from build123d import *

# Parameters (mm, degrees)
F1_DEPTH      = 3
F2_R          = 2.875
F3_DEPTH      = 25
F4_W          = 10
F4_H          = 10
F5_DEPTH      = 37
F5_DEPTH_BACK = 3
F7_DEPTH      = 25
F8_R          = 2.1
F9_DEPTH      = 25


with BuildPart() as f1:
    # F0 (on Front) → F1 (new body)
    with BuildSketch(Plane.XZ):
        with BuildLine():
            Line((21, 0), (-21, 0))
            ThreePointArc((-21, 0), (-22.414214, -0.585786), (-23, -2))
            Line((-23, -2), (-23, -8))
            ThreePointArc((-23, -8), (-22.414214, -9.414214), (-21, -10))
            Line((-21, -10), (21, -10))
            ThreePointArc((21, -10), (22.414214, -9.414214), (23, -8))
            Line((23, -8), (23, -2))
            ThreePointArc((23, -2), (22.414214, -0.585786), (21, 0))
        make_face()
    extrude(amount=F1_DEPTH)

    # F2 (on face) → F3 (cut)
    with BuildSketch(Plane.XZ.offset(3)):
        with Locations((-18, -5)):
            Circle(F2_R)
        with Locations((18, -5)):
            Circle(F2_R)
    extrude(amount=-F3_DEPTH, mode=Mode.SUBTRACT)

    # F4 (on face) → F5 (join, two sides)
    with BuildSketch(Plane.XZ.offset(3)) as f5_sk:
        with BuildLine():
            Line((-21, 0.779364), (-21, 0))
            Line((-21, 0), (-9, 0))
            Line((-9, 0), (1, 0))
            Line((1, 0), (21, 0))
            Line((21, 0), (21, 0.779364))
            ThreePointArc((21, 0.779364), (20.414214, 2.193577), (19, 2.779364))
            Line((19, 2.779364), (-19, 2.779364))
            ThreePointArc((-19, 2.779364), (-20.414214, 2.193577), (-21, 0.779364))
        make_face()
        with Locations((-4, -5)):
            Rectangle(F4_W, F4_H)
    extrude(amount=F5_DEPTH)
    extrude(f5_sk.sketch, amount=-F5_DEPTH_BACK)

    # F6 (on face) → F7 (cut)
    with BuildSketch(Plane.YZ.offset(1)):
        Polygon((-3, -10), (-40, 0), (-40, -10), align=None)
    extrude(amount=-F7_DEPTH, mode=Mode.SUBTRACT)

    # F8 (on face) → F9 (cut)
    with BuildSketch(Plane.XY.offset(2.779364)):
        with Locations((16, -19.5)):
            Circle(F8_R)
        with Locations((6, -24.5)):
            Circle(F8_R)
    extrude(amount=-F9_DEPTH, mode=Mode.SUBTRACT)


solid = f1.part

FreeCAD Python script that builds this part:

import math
import FreeCAD as App
import Part
import Sketcher
from FreeCAD import Vector


def add_polygon(sketch, points):
    """Adds a closed chain of lines whose ends are joined by coincident constraints."""
    first, n = sketch.GeometryCount, len(points)
    for a, b in zip(points, points[1:] + points[:1]):
        sketch.addGeometry(Part.LineSegment(App.Vector(*a, 0), App.Vector(*b, 0)), False)
    for i in range(n):
        sketch.addConstraint(Sketcher.Constraint("Coincident", first + i, 2, first + (i + 1) % n, 1))

doc = App.newDocument("Part")
body = doc.addObject("PartDesign::Body", "Body")

# Sketch on XZ plane
sketch1 = body.newObject("Sketcher::SketchObject", "Sketch")
sketch1.AttachmentSupport = (doc.getObject("XZ_Plane"), [""])
sketch1.MapMode = "FlatFace"
sketch1.addGeometry([
    Part.LineSegment(Vector(21, 0, 0), Vector(-21, 0, 0)),  # 0
    Part.ArcOfCircle(Part.Circle(Vector(-21, -2, 0), Vector(0, 0, 1), 2), math.radians(90), math.radians(180)),  # 1
    Part.LineSegment(Vector(-23, -2, 0), Vector(-23, -8, 0)),  # 2
    Part.ArcOfCircle(Part.Circle(Vector(-21, -8, 0), Vector(0, 0, 1), 2), math.radians(180), math.radians(270)),  # 3
    Part.LineSegment(Vector(-21, -10, 0), Vector(21, -10, 0)),  # 4
    Part.ArcOfCircle(Part.Circle(Vector(21, -8, 0), Vector(0, 0, 1), 2), math.radians(-90), math.radians(0)),  # 5
    Part.LineSegment(Vector(23, -8, 0), Vector(23, -2, 0)),  # 6
    Part.ArcOfCircle(Part.Circle(Vector(21, -2, 0), Vector(0, 0, 1), 2), math.radians(0), math.radians(90)),  # 7
], False)
sketch1.addConstraint([
    Sketcher.Constraint("Tangent", 0, 2, 1, 1),
    Sketcher.Constraint("Tangent", 1, 2, 2, 1),
    Sketcher.Constraint("Tangent", 2, 2, 3, 1),
    Sketcher.Constraint("Tangent", 3, 2, 4, 1),
    Sketcher.Constraint("Tangent", 4, 2, 5, 1),
    Sketcher.Constraint("Tangent", 5, 2, 6, 1),
    Sketcher.Constraint("Tangent", 6, 2, 7, 1),
    Sketcher.Constraint("Tangent", 7, 2, 0, 1),
    Sketcher.Constraint("Horizontal", 0),
    Sketcher.Constraint("Vertical", 2),
    Sketcher.Constraint("Horizontal", 4),
    Sketcher.Constraint("Vertical", 6),
    Sketcher.Constraint("Equal", 1, 3),
    Sketcher.Constraint("Equal", 3, 5),
    Sketcher.Constraint("Equal", 5, 7),
    Sketcher.Constraint("Symmetric", 0, 2, 7, 2, -1, 1),
    Sketcher.Constraint("Radius", 1, 1.999999),
    Sketcher.Constraint("DistanceX", 0, 2, 0, 1, 42.0),
    Sketcher.Constraint("DistanceY", 2, 2, 2, 1, 6.0),
])
pad1 = body.newObject("PartDesign::Pad", "Pad")
pad1.Profile = sketch1
pad1.Length = 3

# Sketch on XZ plane
sketch2 = body.newObject("Sketcher::SketchObject", "Sketch001")
sketch2.AttachmentSupport = (doc.getObject("XZ_Plane"), [""])
sketch2.MapMode = "FlatFace"
sketch2.AttachmentOffset = App.Placement(Vector(0, 0, 3), App.Rotation())
sketch2.addGeometry([
    Part.Circle(Vector(-18, -5, 0), Vector(0, 0, 1), 2.9),
    Part.Circle(Vector(18, -5, 0), Vector(0, 0, 1), 2.9),
], False)
sketch2.addConstraint([
    Sketcher.Constraint("Equal", 0, 1),
    Sketcher.Constraint("Symmetric", 0, 3, 1, 3, -2),
    Sketcher.Constraint("Diameter", 0, 5.75),
    Sketcher.Constraint("DistanceX", 0, 3, -1, 1, 18.0),
    Sketcher.Constraint("DistanceY", 0, 3, -1, 1, 5.0),
])
pocket1 = body.newObject("PartDesign::Pocket", "Pocket")
pocket1.Profile = sketch2
pocket1.Length = 25

# Sketch on XZ plane
sketch3 = body.newObject("Sketcher::SketchObject", "Sketch002")
sketch3.AttachmentSupport = (doc.getObject("XZ_Plane"), [""])
sketch3.MapMode = "FlatFace"
sketch3.AttachmentOffset = App.Placement(Vector(0, 0, 3), App.Rotation())
sketch3.addGeometry([
    Part.LineSegment(Vector(-21, 0.8, 0), Vector(-21, 0, 0)),  # 0
    Part.LineSegment(Vector(-21, 0, 0), Vector(-9, 0, 0)),  # 1
    Part.LineSegment(Vector(-9, 0, 0), Vector(-9, -10, 0)),  # 2
    Part.LineSegment(Vector(-9, -10, 0), Vector(1, -10, 0)),  # 3
    Part.LineSegment(Vector(1, -10, 0), Vector(1, 0, 0)),  # 4
    Part.LineSegment(Vector(1, 0, 0), Vector(21, 0, 0)),  # 5
    Part.LineSegment(Vector(21, 0, 0), Vector(21, 0.8, 0)),  # 6
    Part.ArcOfCircle(Part.Circle(Vector(19, 0.8, 0), Vector(0, 0, 1), 2), math.radians(0), math.radians(90)),  # 7
    Part.LineSegment(Vector(19, 2.8, 0), Vector(-19, 2.8, 0)),  # 8
    Part.ArcOfCircle(Part.Circle(Vector(-19, 0.8, 0), Vector(0, 0, 1), 2), math.radians(90), math.radians(180)),  # 9
], False)
sketch3.addConstraint([
    Sketcher.Constraint("Coincident", 0, 2, 1, 1),
    Sketcher.Constraint("Coincident", 1, 2, 2, 1),
    Sketcher.Constraint("Coincident", 2, 2, 3, 1),
    Sketcher.Constraint("Coincident", 3, 2, 4, 1),
    Sketcher.Constraint("Coincident", 4, 2, 5, 1),
    Sketcher.Constraint("Coincident", 5, 2, 6, 1),
    Sketcher.Constraint("Tangent", 6, 2, 7, 1),
    Sketcher.Constraint("Tangent", 7, 2, 8, 1),
    Sketcher.Constraint("Tangent", 8, 2, 9, 1),
    Sketcher.Constraint("Tangent", 9, 2, 0, 1),
    Sketcher.Constraint("Vertical", 0),
    Sketcher.Constraint("Horizontal", 1),
    Sketcher.Constraint("Vertical", 2),
    Sketcher.Constraint("Horizontal", 3),
    Sketcher.Constraint("Vertical", 4),
    Sketcher.Constraint("Horizontal", 5),
    Sketcher.Constraint("Vertical", 6),
    Sketcher.Constraint("Horizontal", 8),
    Sketcher.Constraint("Equal", 7, 9),
    Sketcher.Constraint("Symmetric", 0, 2, 5, 2, -1, 1),
    Sketcher.Constraint("PointOnObject", 0, 2, -1),
    Sketcher.Constraint("Equal", 3, 2),
    Sketcher.Constraint("Radius", 7, 2.0),
    Sketcher.Constraint("DistanceX", 1, 1, 1, 2, 12.0),
    Sketcher.Constraint("DistanceX", 3, 1, 3, 2, 10.0),
    Sketcher.Constraint("DistanceX", 5, 1, 5, 2, 20.0),
    Sketcher.Constraint("DistanceY", 0, 2, 0, 1, 0.779364),
])
pad2 = body.newObject("PartDesign::Pad", "Pad001")
pad2.Profile = sketch3
pad2.Type = "TwoLengths"
pad2.Length = 37
pad2.Length2 = 3

# Sketch on YZ plane
sketch4 = body.newObject("Sketcher::SketchObject", "Sketch003")
sketch4.AttachmentSupport = (doc.getObject("YZ_Plane"), [""])
sketch4.MapMode = "FlatFace"
sketch4.AttachmentOffset = App.Placement(Vector(0, 0, 1), App.Rotation())
add_polygon(sketch4, [(-3, -10), (-40, 0), (-40, -10)])  # lines 0-2
sketch4.addConstraint([
    Sketcher.Constraint("Vertical", 1),
    Sketcher.Constraint("Horizontal", 2),
    Sketcher.Constraint("PointOnObject", 0, 2, -1),
    Sketcher.Constraint("DistanceX", 2, 1, 2, 2, 37.0),
    Sketcher.Constraint("DistanceY", 1, 2, 1, 1, 10.0),
    Sketcher.Constraint("DistanceX", 0, 2, -1, 1, 40.0),
])
pocket2 = body.newObject("PartDesign::Pocket", "Pocket001")
pocket2.Profile = sketch4
pocket2.Length = 25

# Sketch on XY plane
sketch5 = body.newObject("Sketcher::SketchObject", "Sketch004")
sketch5.AttachmentSupport = (doc.getObject("XY_Plane"), [""])
sketch5.MapMode = "FlatFace"
sketch5.AttachmentOffset = App.Placement(Vector(0, 0, 2.779364), App.Rotation())
sketch5.addGeometry([
    Part.Circle(Vector(16, -19.5, 0), Vector(0, 0, 1), 2.1),
    Part.Circle(Vector(6, -24.5, 0), Vector(0, 0, 1), 2.1),
], False)
sketch5.addConstraint([
    Sketcher.Constraint("Equal", 0, 1),
    Sketcher.Constraint("Diameter", 0, 4.2),
    Sketcher.Constraint("DistanceX", -1, 1, 0, 3, 16.0),
    Sketcher.Constraint("DistanceX", -1, 1, 1, 3, 6.0),
    Sketcher.Constraint("DistanceY", 1, 3, 0, 3, 5.0),
    Sketcher.Constraint("DistanceY", 0, 3, -1, 1, 19.5),
])
pocket3 = body.newObject("PartDesign::Pocket", "Pocket002")
pocket3.Profile = sketch5
pocket3.Length = 25

doc.recompute()
